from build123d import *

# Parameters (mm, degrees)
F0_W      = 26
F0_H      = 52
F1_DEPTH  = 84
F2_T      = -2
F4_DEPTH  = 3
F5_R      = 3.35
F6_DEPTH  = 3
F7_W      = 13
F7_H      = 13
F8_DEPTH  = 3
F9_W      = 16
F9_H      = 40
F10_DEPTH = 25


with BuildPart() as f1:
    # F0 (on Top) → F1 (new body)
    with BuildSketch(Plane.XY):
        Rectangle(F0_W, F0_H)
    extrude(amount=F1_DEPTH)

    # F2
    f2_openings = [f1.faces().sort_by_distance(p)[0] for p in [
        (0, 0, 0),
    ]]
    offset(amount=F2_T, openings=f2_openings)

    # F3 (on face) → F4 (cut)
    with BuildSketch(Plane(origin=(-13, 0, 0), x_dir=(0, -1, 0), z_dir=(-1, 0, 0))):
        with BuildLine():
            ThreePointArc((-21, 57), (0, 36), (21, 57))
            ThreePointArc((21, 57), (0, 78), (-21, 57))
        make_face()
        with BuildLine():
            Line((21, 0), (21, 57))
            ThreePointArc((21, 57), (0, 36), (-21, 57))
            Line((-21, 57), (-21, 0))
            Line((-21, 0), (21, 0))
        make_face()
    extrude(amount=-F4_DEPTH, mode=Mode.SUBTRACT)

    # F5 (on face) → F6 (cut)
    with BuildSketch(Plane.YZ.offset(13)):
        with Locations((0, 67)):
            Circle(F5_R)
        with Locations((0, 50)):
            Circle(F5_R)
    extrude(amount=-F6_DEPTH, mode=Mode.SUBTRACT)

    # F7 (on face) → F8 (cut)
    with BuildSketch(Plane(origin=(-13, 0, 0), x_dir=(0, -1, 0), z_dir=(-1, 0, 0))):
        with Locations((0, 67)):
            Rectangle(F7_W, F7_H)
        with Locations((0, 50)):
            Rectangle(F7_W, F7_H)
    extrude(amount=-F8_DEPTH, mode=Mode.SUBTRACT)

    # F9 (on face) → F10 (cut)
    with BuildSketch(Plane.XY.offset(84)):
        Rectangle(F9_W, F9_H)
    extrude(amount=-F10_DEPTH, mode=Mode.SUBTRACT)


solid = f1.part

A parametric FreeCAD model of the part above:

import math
import FreeCAD as App
import Part
import Sketcher
Q = App.Units.Quantity


def faces_at(feature, points):
    """Names of the faces that lie closest to the given points."""
    faces = feature.Shape.Faces
    near = lambda p: min(range(len(faces)), key=lambda i: faces[i].distToShape(Part.Vertex(*p))[0])
    return sorted({f"Face{near(p) + 1}" for p in points})

doc = App.newDocument("Part")
params = doc.addObject("Spreadsheet::Sheet", "Params")
for row, (alias, value) in enumerate([
    ("sketch1_width", "26 mm"),
    ("sketch1_height", "52 mm"),
    ("pad1_length", "84 mm"),
    ("thickness_wall", "2 mm"),
    ("sketch2_radius", "21 mm"),
    ("sketch2_height", "57 mm"),
    ("pocket1_length", "3 mm"),
    ("sketch3_diameter", "6.7 mm"),
    ("pocket2_length", "3 mm"),
    ("sketch4_width", "13 mm"),
    ("pocket3_length", "3 mm"),
    ("sketch5_width", "16 mm"),
    ("sketch5_height", "40 mm"),
    ("pocket4_length", "25 mm"),
], start=1):
    params.set(f"A{row}", alias)
    params.set(f"B{row}", "=" + value)
    params.setAlias(f"B{row}", alias)

body = doc.addObject("PartDesign::Body", "Body")

sketch1 = doc.addObject("Sketcher::SketchObject", "Sketch")
body.addObject(sketch1)
sketch1.AttachmentSupport = (doc.XY_Plane, [""])
sketch1.MapMode = "FlatFace"
sketch1.addGeometry([
    Part.LineSegment(App.Vector(-13, 26, 0), App.Vector(-13, -26, 0)),
    Part.LineSegment(App.Vector(-13, -26, 0), App.Vector(13, -26, 0)),
    Part.LineSegment(App.Vector(13, -26, 0), App.Vector(13, 26, 0)),
    Part.LineSegment(App.Vector(13, 26, 0), App.Vector(-13, 26, 0)),
], False)
sketch1.addConstraint([
    Sketcher.Constraint("Coincident", 0, 2, 1, 1),
    Sketcher.Constraint("Coincident", 1, 2, 2, 1),
    Sketcher.Constraint("Coincident", 2, 2, 3, 1),
    Sketcher.Constraint("Coincident", 3, 2, 0, 1),
    Sketcher.Constraint("Vertical", 0),
    Sketcher.Constraint("Horizontal", 1),
    Sketcher.Constraint("Vertical", 2),
    Sketcher.Constraint("Horizontal", 3),
    Sketcher.Constraint("Symmetric", 0, 2, 2, 2, -1, 1),
    Sketcher.Constraint("DistanceX", 1, 1, 1, 2, Q("26 mm")),
    Sketcher.Constraint("DistanceY", 0, 2, 0, 1, Q("52 mm")),
])
sketch1.setExpression("Constraints[9]", "Params.sketch1_width")
sketch1.setExpression("Constraints[10]", "Params.sketch1_height")
pad1 = doc.addObject("PartDesign::Pad", "Pad")
body.addObject(pad1)
pad1.Profile = sketch1
pad1.setExpression("Length", "Params.pad1_length")
doc.recompute()

thickness = doc.addObject("PartDesign::Thickness", "Thickness")
body.addObject(thickness)
thickness.Base = (pad1, faces_at(pad1, [(0, 0, 0)]))
thickness.setExpression("Value", "Params.thickness_wall")
thickness.Reversed = True
thickness.Join = "Arc"

sketch2 = doc.addObject("Sketcher::SketchObject", "Sketch001")
body.addObject(sketch2)
sketch2.AttachmentSupport = (doc.YZ_Plane, [""])
sketch2.MapMode = "FlatFace"
sketch2.AttachmentOffset = App.Placement(App.Vector(0, 0, -13), App.Rotation())
sketch2.addGeometry([
    Part.ArcOfCircle(Part.Circle(App.Vector(0, 57, 0), App.Vector(0, 0, 1), 21), math.radians(0), math.radians(180)),
    Part.LineSegment(App.Vector(21, 57, 0), App.Vector(21, 0, 0)),
    Part.LineSegment(App.Vector(21, 0, 0), App.Vector(-21, 0, 0)),
    Part.LineSegment(App.Vector(-21, 0, 0), App.Vector(-21, 57, 0)),
], False)
sketch2.addConstraint([
    Sketcher.Constraint("Tangent", 0, 1, 1, 1),
    Sketcher.Constraint("Coincident", 1, 2, 2, 1),
    Sketcher.Constraint("Coincident", 2, 2, 3, 1),
    Sketcher.Constraint("Tangent", 3, 2, 0, 2),
    Sketcher.Constraint("Vertical", 1),
    Sketcher.Constraint("Horizontal", 2),
    Sketcher.Constraint("Vertical", 3),
    Sketcher.Constraint("Symmetric", 1, 2, 2, 2, -1, 1),
    Sketcher.Constraint("Radius", 0, Q("21 mm")),
    Sketcher.Constraint("DistanceY", 1, 2, 1, 1, Q("57 mm")),
])
sketch2.setExpression("Constraints[8]", "Params.sketch2_radius")
sketch2.setExpression("Constraints[9]", "Params.sketch2_height")
pocket1 = doc.addObject("PartDesign::Pocket", "Pocket")
body.addObject(pocket1)
pocket1.Profile = sketch2
pocket1.setExpression("Length", "Params.pocket1_length")
pocket1.Reversed = True

sketch3 = doc.addObject("Sketcher::SketchObject", "Sketch002")
body.addObject(sketch3)
sketch3.AttachmentSupport = (doc.YZ_Plane, [""])
sketch3.MapMode = "FlatFace"
sketch3.AttachmentOffset = App.Placement(App.Vector(0, 0, 13), App.Rotation())
sketch3.addGeometry([
    Part.Circle(App.Vector(0, 67, 0), App.Vector(0, 0, 1), 3.35),
    Part.Circle(App.Vector(0, 50, 0), App.Vector(0, 0, 1), 3.35),
], False)
sketch3.addConstraint([
    Sketcher.Constraint("Equal", 0, 1),
    Sketcher.Constraint("PointOnObject", 0, 3, -2),
    Sketcher.Constraint("PointOnObject", 1, 3, -2),
    Sketcher.Constraint("Diameter", 0, Q("6.7 mm")),
    Sketcher.Constraint("DistanceY", -1, 1, 0, 3, Q("67 mm")),
    Sketcher.Constraint("DistanceY", -1, 1, 1, 3, Q("50 mm")),
])
sketch3.setExpression("Constraints[3]", "Params.sketch3_diameter")
pocket2 = doc.addObject("PartDesign::Pocket", "Pocket001")
body.addObject(pocket2)
pocket2.Profile = sketch3
pocket2.setExpression("Length", "Params.pocket2_length")

sketch4 = doc.addObject("Sketcher::SketchObject", "Sketch003")
body.addObject(sketch4)
sketch4.AttachmentSupport = (doc.YZ_Plane, [""])
sketch4.MapMode = "FlatFace"
sketch4.AttachmentOffset = App.Placement(App.Vector(0, 0, -13), App.Rotation())
sketch4.addGeometry([
    Part.LineSegment(App.Vector(6.5, 73.5, 0), App.Vector(6.5, 60.5, 0)),
    Part.LineSegment(App.Vector(6.5, 60.5, 0), App.Vector(-6.5, 60.5, 0)),
    Part.LineSegment(App.Vector(-6.5, 60.5, 0), App.Vector(-6.5, 73.5, 0)),
    Part.LineSegment(App.Vector(-6.5, 73.5, 0), App.Vector(6.5, 73.5, 0)),
    Part.LineSegment(App.Vector(6.5, 56.5, 0), App.Vector(6.5, 43.5, 0)),
    Part.LineSegment(App.Vector(6.5, 43.5, 0), App.Vector(-6.5, 43.5, 0)),
    Part.LineSegment(App.Vector(-6.5, 43.5, 0), App.Vector(-6.5, 56.5, 0)),
    Part.LineSegment(App.Vector(-6.5, 56.5, 0), App.Vector(6.5, 56.5, 0)),
], False)
sketch4.addConstraint([
    Sketcher.Constraint("Coincident", 0, 2, 1, 1),
    Sketcher.Constraint("Coincident", 1, 2, 2, 1),
    Sketcher.Constraint("Coincident", 2, 2, 3, 1),
    Sketcher.Constraint("Coincident", 3, 2, 0, 1),
    Sketcher.Constraint("Coincident", 4, 2, 5, 1),
    Sketcher.Constraint("Coincident", 5, 2, 6, 1),
    Sketcher.Constraint("Coincident", 6, 2, 7, 1),
    Sketcher.Constraint("Coincident", 7, 2, 4, 1),
    Sketcher.Constraint("Vertical", 0),
    Sketcher.Constraint("Horizontal", 1),
    Sketcher.Constraint("Vertical", 2),
    Sketcher.Constraint("Horizontal", 3),
    Sketcher.Constraint("Vertical", 4),
    Sketcher.Constraint("Horizontal", 5),
    Sketcher.Constraint("Vertical", 6),
    Sketcher.Constraint("Horizontal", 7),
    Sketcher.Constraint("Vertical", 3, 2, 4, 2),
    Sketcher.Constraint("Vertical", 2, 2, 5, 2),
    Sketcher.Constraint("Equal", 7, 0),
    Sketcher.Constraint("Equal", 2, 4),
    Sketcher.Constraint("DistanceX", 1, 2, 1, 1, Q("13 mm")),
    Sketcher.Constraint("DistanceY", 4, 2, 0, 2, Q("17 mm")),
    Sketcher.Constraint("DistanceX", -1, 1, 0, 2, Q("6.5 mm")),
    Sketcher.Constraint("DistanceY", -1, 1, 0, 2, Q("60.5 mm")),
])
sketch4.setExpression("Constraints[20]", "Params.sketch4_width")
pocket3 = doc.addObject("PartDesign::Pocket", "Pocket002")
body.addObject(pocket3)
pocket3.Profile = sketch4
pocket3.setExpression("Length", "Params.pocket3_length")
pocket3.Reversed = True

sketch5 = doc.addObject("Sketcher::SketchObject", "Sketch004")
body.addObject(sketch5)
sketch5.AttachmentSupport = (doc.XY_Plane, [""])
sketch5.MapMode = "FlatFace"
sketch5.AttachmentOffset = App.Placement(App.Vector(0, 0, 84), App.Rotation())
sketch5.addGeometry([
    Part.LineSegment(App.Vector(-8, 20, 0), App.Vector(-8, -20, 0)),
    Part.LineSegment(App.Vector(-8, -20, 0), App.Vector(8, -20, 0)),
    Part.LineSegment(App.Vector(8, -20, 0), App.Vector(8, 20, 0)),
    Part.LineSegment(App.Vector(8, 20, 0), App.Vector(-8, 20, 0)),
], False)
sketch5.addConstraint([
    Sketcher.Constraint("Coincident", 0, 2, 1, 1),
    Sketcher.Constraint("Coincident", 1, 2, 2, 1),
    Sketcher.Constraint("Coincident", 2, 2, 3, 1),
    Sketcher.Constraint("Coincident", 3, 2, 0, 1),
    Sketcher.Constraint("Vertical", 0),
    Sketcher.Constraint("Horizontal", 1),
    Sketcher.Constraint("Vertical", 2),
    Sketcher.Constraint("Horizontal", 3),
    Sketcher.Constraint("Symmetric", 0, 2, 2, 2, -1, 1),
    Sketcher.Constraint("DistanceX", 1, 1, 1, 2, Q("16 mm")),
    Sketcher.Constraint("DistanceY", 0, 2, 0, 1, Q("40 mm")),
])
sketch5.setExpression("Constraints[9]", "Params.sketch5_width")
sketch5.setExpression("Constraints[10]", "Params.sketch5_height")
pocket4 = doc.addObject("PartDesign::Pocket", "Pocket003")
body.addObject(pocket4)
pocket4.Profile = sketch5
pocket4.setExpression("Length", "Params.pocket4_length")

doc.recompute()
